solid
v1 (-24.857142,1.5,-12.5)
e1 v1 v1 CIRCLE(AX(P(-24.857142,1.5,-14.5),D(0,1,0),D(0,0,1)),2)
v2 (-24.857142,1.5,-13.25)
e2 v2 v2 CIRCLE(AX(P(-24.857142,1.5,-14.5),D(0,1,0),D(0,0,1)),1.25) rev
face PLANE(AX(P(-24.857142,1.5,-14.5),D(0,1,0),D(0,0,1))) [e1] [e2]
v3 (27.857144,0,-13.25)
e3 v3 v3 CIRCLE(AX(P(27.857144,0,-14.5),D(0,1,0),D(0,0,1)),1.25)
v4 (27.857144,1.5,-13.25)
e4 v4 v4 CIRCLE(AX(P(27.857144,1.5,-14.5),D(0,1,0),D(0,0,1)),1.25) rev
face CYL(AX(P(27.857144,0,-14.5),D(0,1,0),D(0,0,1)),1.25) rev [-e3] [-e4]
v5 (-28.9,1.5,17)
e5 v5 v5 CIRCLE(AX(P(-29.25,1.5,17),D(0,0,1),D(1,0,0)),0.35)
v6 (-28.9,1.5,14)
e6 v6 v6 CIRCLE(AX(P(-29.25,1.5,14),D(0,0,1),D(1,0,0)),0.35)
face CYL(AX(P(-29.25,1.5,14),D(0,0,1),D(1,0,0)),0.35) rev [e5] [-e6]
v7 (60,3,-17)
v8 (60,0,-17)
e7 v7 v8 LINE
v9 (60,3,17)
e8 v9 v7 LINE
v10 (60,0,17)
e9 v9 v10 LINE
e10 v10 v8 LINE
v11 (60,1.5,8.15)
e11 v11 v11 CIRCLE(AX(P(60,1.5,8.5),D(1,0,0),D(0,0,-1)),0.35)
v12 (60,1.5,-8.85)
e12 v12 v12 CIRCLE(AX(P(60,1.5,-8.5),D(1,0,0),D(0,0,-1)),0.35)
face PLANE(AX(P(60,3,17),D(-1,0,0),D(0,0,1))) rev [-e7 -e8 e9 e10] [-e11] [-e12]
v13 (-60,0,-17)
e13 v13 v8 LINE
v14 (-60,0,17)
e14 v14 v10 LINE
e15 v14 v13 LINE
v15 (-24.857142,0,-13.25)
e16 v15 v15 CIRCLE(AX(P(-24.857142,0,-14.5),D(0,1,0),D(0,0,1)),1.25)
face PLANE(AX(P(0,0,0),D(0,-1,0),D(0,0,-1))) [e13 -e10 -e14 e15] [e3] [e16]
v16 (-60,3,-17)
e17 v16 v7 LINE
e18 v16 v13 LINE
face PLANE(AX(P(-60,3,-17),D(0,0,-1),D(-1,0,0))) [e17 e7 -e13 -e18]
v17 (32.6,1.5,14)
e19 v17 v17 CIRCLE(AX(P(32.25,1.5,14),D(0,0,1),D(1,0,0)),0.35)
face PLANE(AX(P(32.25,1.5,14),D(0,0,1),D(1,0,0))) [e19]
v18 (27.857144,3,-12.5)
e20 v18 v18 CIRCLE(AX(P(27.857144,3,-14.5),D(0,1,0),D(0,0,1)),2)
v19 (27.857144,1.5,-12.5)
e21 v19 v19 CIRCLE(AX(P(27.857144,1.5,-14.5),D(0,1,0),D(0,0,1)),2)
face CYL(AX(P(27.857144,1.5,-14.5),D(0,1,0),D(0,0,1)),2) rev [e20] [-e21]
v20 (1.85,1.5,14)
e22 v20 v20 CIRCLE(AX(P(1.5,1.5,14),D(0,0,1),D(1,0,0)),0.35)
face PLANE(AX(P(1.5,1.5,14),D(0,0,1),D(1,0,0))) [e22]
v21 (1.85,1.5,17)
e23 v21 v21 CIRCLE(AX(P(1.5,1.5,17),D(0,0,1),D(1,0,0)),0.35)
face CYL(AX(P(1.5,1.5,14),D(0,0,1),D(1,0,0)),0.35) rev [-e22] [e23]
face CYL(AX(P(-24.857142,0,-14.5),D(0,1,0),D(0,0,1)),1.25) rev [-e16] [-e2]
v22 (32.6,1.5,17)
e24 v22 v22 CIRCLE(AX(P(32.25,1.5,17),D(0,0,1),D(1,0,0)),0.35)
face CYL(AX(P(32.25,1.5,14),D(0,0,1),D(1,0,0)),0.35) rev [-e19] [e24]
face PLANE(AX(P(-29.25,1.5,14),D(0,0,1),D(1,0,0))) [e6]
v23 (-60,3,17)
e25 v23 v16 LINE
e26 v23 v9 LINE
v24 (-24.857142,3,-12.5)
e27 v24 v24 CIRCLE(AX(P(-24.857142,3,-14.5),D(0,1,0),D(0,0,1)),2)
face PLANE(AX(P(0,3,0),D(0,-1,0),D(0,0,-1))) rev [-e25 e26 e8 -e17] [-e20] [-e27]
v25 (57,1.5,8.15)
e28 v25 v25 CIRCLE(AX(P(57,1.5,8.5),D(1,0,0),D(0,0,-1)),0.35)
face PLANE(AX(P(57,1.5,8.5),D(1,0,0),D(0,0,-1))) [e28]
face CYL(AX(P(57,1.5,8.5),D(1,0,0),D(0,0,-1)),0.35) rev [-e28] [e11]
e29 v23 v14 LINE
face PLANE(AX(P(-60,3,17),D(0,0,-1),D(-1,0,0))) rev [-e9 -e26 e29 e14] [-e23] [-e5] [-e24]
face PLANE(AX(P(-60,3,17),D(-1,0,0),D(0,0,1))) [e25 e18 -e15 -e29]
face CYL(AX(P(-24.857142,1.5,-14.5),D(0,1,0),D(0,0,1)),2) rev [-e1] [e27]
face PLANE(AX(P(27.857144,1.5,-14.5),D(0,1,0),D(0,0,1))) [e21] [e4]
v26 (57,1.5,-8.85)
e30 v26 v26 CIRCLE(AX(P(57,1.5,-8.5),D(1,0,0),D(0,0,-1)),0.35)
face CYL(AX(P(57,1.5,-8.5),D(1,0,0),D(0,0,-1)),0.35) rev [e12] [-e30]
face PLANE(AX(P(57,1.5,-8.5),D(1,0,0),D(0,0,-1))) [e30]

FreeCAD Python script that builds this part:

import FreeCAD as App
import Part
import Sketcher

V = App.Vector
Q = App.Units.Quantity


def add_polygon(sketch, points):
    """Adds a closed chain of lines whose ends are joined by coincident constraints."""
    first, n = sketch.GeometryCount, len(points)
    for a, b in zip(points, points[1:] + points[:1]):
        sketch.addGeometry(Part.LineSegment(App.Vector(*a, 0), App.Vector(*b, 0)), False)
    for i in range(n):
        sketch.addConstraint(Sketcher.Constraint("Coincident", first + i, 2, first + (i + 1) % n, 1))

doc = App.newDocument("Part")
body = doc.addObject("PartDesign::Body", "Body")

# Sketch on XZ plane
sketch1 = body.newObject("Sketcher::SketchObject", "Sketch")
sketch1.AttachmentSupport = (doc.getObject("XZ_Plane"), [""])
sketch1.MapMode = "FlatFace"
add_polygon(sketch1, [(-60, -17), (-60, 17), (60, 17), (60, -17)])  # lines 0-3
sketch1.addConstraint(Sketcher.Constraint("Vertical", 0))
sketch1.addConstraint(Sketcher.Constraint("Horizontal", 1))
sketch1.addConstraint(Sketcher.Constraint("Vertical", 2))
sketch1.addConstraint(Sketcher.Constraint("Horizontal", 3))
sketch1.addConstraint(Sketcher.Constraint("Symmetric", 0, 2, 2, 2, -1, 1))
sketch1.addConstraint(Sketcher.Constraint("DistanceX", 1, 1, 1, 2, Q("120 mm")))
sketch1.addConstraint(Sketcher.Constraint("DistanceY", 0, 1, 0, 2, Q("34 mm")))
pad1 = body.newObject("PartDesign::Pad", "Pad")
pad1.Profile = sketch1
pad1.Length = 3
pad1.Reversed = True

# Sketch on XZ plane
sketch2 = body.newObject("Sketcher::SketchObject", "Sketch001")
sketch2.AttachmentSupport = (doc.getObject("XZ_Plane"), [""])
sketch2.MapMode = "FlatFace"
sketch2.AttachmentOffset = App.Placement(V(0, 0, -3), App.Rotation())
sketch2.addGeometry(Part.Circle(V(-24.9, -14.5, 0), V(0, 0, 1), 1.2), False)
sketch2.addGeometry(Part.Circle(V(27.9, -14.5, 0), V(0, 0, 1), 1.2), False)
sketch2.addConstraint(Sketcher.Constraint("Equal", 0, 1))
sketch2.addConstraint(Sketcher.Constraint("Horizontal", 0, 3, 1, 3))
sketch2.addConstraint(Sketcher.Constraint("Diameter", 0, Q("2.5 mm")))
sketch2.addConstraint(Sketcher.Constraint("DistanceY", 0, 3, -1, 1, Q("14.5 mm")))
sketch2.addConstraint(Sketcher.Constraint("DistanceX", 0, 3, -1, 1, Q("24.857142 mm")))
sketch2.addConstraint(Sketcher.Constraint("DistanceX", -1, 1, 1, 3, Q("27.857144 mm")))
pocket1 = body.newObject("PartDesign::Pocket", "Pocket")
pocket1.Profile = sketch2
pocket1.Type = "ThroughAll"
pocket1.Reversed = True

# Sketch on XZ plane
sketch3 = body.newObject("Sketcher::SketchObject", "Sketch002")
sketch3.AttachmentSupport = (doc.getObject("XZ_Plane"), [""])
sketch3.MapMode = "FlatFace"
sketch3.AttachmentOffset = App.Placement(V(0, 0, -3), App.Rotation())
sketch3.addGeometry(Part.Circle(V(-24.9, -14.5, 0), V(0, 0, 1), 2), False)
sketch3.addGeometry(Part.Circle(V(27.9, -14.5, 0), V(0, 0, 1), 2), False)
sketch3.addConstraint(Sketcher.Constraint("Equal", 0, 1))
sketch3.addConstraint(Sketcher.Constraint("Horizontal", 0, 3, 1, 3))
sketch3.addConstraint(Sketcher.Constraint("Diameter", 0, Q("4 mm")))
sketch3.addConstraint(Sketcher.Constraint("DistanceY", 0, 3, -1, 1, Q("14.5 mm")))
sketch3.addConstraint(Sketcher.Constraint("DistanceX", 0, 3, -1, 1, Q("24.857142 mm")))
sketch3.addConstraint(Sketcher.Constraint("DistanceX", -1, 1, 1, 3, Q("27.857144 mm")))
pocket2 = body.newObject("PartDesign::Pocket", "Pocket001")
pocket2.Profile = sketch3
pocket2.Length = 1.5
pocket2.Reversed = True

# Sketch on YZ plane
sketch4 = body.newObject("Sketcher::SketchObject", "Sketch003")
sketch4.AttachmentSupport = (doc.getObject("YZ_Plane"), [""])
sketch4.MapMode = "FlatFace"
sketch4.AttachmentOffset = App.Placement(V(0, 0, 60), App.Rotation())
sketch4.addGeometry(Part.Circle(V(1.5, 8.5, 0), V(0, 0, 1), 0.35), False)
sketch4.addGeometry(Part.Circle(V(1.5, -8.5, 0), V(0, 0, 1), 0.35), False)
sketch4.addConstraint(Sketcher.Constraint("Equal", 0, 1))
sketch4.addConstraint(Sketcher.Constraint("Symmetric", 0, 3, 1, 3, -1))
sketch4.addConstraint(Sketcher.Constraint("Diameter", 0, Q("0.7 mm")))
sketch4.addConstraint(Sketcher.Constraint("DistanceY", 1, 3, 0, 3, Q("17 mm")))
sketch4.addConstraint(Sketcher.Constraint("DistanceX", -1, 1, 0, 3, Q("1.5 mm")))
pocket3 = body.newObject("PartDesign::Pocket", "Pocket002")
pocket3.Profile = sketch4
pocket3.Length = 3

# Sketch on XY plane
sketch5 = body.newObject("Sketcher::SketchObject", "Sketch004")
sketch5.AttachmentSupport = (doc.getObject("XY_Plane"), [""])
sketch5.MapMode = "FlatFace"
sketch5.AttachmentOffset = App.Placement(V(0, 0, 17), App.Rotation())
sketch5.addGeometry(Part.Circle(V(-29.25, 1.5, 0), V(0, 0, 1), 0.35), False)
sketch5.addGeometry(Part.Circle(V(1.5, 1.5, 0), V(0, 0, 1), 0.35), False)
sketch5.addGeometry(Part.Circle(V(32.25, 1.5, 0), V(0, 0, 1), 0.35), False)
sketch5.addConstraint(Sketcher.Constraint("Equal", 0, 1))
sketch5.addConstraint(Sketcher.Constraint("Equal", 1, 2))
sketch5.addConstraint(Sketcher.Constraint("Horizontal", 0, 3, 1, 3))
sketch5.addConstraint(Sketcher.Constraint("Horizontal", 1, 3, 2, 3))
sketch5.addConstraint(Sketcher.Constraint("Diameter", 0, Q("0.7 mm")))
sketch5.addConstraint(Sketcher.Constraint("DistanceY", -1, 1, 0, 3, Q("1.5 mm")))
sketch5.addConstraint(Sketcher.Constraint("DistanceX", -1, 1, 1, 3, Q("1.5 mm")))
sketch5.addConstraint(Sketcher.Constraint("DistanceX", 0, 3, 2, 3, Q("61.5 mm")))
sketch5.addConstraint(Sketcher.Constraint("DistanceX", 0, 3, -1, 1, Q("29.25 mm")))
pocket4 = body.newObject("PartDesign::Pocket", "Pocket003")
pocket4.Profile = sketch5
pocket4.Length = 3

doc.recompute()
